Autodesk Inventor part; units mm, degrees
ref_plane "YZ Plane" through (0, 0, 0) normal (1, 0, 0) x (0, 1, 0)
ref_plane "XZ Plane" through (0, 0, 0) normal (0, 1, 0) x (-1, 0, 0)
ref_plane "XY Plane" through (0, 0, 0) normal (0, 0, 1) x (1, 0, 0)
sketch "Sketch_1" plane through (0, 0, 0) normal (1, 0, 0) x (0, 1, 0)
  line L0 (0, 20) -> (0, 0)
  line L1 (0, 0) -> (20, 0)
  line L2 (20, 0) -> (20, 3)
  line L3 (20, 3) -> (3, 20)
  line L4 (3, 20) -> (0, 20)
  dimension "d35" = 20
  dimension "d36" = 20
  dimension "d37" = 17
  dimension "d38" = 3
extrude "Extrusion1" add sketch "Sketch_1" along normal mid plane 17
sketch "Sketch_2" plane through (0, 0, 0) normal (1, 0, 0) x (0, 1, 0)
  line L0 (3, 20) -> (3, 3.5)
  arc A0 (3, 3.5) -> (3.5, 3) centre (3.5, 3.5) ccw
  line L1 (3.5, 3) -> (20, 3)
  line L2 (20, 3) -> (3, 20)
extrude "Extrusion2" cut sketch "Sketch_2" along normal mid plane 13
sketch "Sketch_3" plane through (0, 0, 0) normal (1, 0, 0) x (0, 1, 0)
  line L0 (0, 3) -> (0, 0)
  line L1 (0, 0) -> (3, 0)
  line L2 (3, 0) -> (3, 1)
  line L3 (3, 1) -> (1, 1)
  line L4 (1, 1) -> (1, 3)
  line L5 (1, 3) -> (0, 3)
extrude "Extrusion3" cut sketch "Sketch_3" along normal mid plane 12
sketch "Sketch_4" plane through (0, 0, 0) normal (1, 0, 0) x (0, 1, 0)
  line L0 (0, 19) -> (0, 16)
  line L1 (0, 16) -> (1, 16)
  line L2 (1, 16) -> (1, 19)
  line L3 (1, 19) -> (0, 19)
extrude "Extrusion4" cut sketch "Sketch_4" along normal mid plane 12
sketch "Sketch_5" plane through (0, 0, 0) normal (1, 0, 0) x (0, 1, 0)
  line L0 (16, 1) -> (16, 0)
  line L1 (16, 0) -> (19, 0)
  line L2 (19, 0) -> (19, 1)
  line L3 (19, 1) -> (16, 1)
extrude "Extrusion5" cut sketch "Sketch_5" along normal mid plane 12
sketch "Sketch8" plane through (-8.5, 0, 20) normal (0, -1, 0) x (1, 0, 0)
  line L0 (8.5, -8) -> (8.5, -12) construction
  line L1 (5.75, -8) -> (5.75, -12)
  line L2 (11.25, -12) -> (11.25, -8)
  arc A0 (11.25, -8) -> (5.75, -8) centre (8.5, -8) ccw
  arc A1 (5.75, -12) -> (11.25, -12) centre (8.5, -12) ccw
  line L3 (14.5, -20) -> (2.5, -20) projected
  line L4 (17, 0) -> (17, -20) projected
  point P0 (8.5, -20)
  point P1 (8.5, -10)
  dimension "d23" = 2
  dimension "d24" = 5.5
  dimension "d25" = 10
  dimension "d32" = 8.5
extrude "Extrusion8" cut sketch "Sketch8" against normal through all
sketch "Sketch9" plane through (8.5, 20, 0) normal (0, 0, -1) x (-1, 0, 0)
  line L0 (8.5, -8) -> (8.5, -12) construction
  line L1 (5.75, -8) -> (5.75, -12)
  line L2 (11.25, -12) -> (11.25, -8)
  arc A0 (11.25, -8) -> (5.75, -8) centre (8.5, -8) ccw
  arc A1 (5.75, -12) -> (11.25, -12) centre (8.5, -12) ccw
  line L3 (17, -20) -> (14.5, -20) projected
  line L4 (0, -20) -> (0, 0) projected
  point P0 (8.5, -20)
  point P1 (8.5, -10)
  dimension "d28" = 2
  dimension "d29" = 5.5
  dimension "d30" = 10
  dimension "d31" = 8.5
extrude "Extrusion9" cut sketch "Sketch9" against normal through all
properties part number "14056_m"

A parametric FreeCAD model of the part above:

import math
import FreeCAD as App
import Part
import Sketcher

doc = App.newDocument("Part")
body = doc.addObject("PartDesign::Body", "Body")

# Sketch on YZ plane
sketch1 = doc.addObject("Sketcher::SketchObject", "Sketch")
body.addObject(sketch1)
sketch1.AttachmentSupport = (doc.YZ_Plane, [""])
sketch1.MapMode = "FlatFace"
sketch1.addGeometry([
    Part.LineSegment(App.Vector(3, 20, 0), App.Vector(0, 20, 0)),  # 0
    Part.LineSegment(App.Vector(0, 20, 0), App.Vector(0, 0, 0)),  # 1
    Part.LineSegment(App.Vector(0, 0, 0), App.Vector(20, 0, 0)),  # 2
    Part.LineSegment(App.Vector(20, 0, 0), App.Vector(20, 3, 0)),  # 3
    Part.LineSegment(App.Vector(20, 3, 0), App.Vector(3, 20, 0)),  # 4
], False)
sketch1.addConstraint([
    Sketcher.Constraint("Coincident", 0, 2, 1, 1),
    Sketcher.Constraint("Coincident", 1, 2, 2, 1),
    Sketcher.Constraint("Coincident", 2, 2, 3, 1),
    Sketcher.Constraint("Coincident", 3, 2, 4, 1),
    Sketcher.Constraint("Coincident", 4, 2, 0, 1),
    Sketcher.Constraint("Horizontal", 0),
    Sketcher.Constraint("Vertical", 1),
    Sketcher.Constraint("Horizontal", 2),
    Sketcher.Constraint("Vertical", 3),
    Sketcher.Constraint("Coincident", 1, 2, -1, 1),
    Sketcher.Constraint("Equal", 2, 1),
    Sketcher.Constraint("Equal", 0, 3),
    Sketcher.Constraint("DistanceX", 0, 2, 0, 1, 3.0),
    Sketcher.Constraint("DistanceX", 2, 1, 2, 2, 20.0),
])
pad1 = doc.addObject("PartDesign::Pad", "Pad")
body.addObject(pad1)
pad1.Profile = sketch1
pad1.Length = 17
pad1.Midplane = True

# Sketch on YZ plane
sketch2 = doc.addObject("Sketcher::SketchObject", "Sketch001")
body.addObject(sketch2)
sketch2.AttachmentSupport = (doc.YZ_Plane, [""])
sketch2.MapMode = "FlatFace"
sketch2.addGeometry([
    Part.LineSegment(App.Vector(20, 3, 0), App.Vector(3, 20, 0)),
    Part.LineSegment(App.Vector(3, 20, 0), App.Vector(3, 3.5, 0)),
    Part.ArcOfCircle(Part.Circle(App.Vector(3.5, 3.5, 0), App.Vector(0, 0, 1), 0.5), math.radians(180), math.radians(270)),
    Part.LineSegment(App.Vector(3.5, 3, 0), App.Vector(20, 3, 0)),
], False)
sketch2.addConstraint([
    Sketcher.Constraint("Coincident", 0, 2, 1, 1),
    Sketcher.Constraint("Tangent", 1, 2, 2, 1),
    Sketcher.Constraint("Tangent", 2, 2, 3, 1),
    Sketcher.Constraint("Coincident", 3, 2, 0, 1),
    Sketcher.Constraint("Vertical", 1),
    Sketcher.Constraint("Horizontal", 3),
    Sketcher.Constraint("Equal", 3, 1),
    Sketcher.Constraint("Radius", 2, 0.5),
    Sketcher.Constraint("DistanceX", 3, 1, 3, 2, 16.5),
    Sketcher.Constraint("DistanceX", -1, 1, 0, 2, 3.0),
    Sketcher.Constraint("DistanceY", -1, 1, 0, 2, 20.0),
])
pocket1 = doc.addObject("PartDesign::Pocket", "Pocket")
body.addObject(pocket1)
pocket1.Profile = sketch2
pocket1.Length = 13
pocket1.Midplane = True

# Sketch on YZ plane
sketch3 = doc.addObject("Sketcher::SketchObject", "Sketch002")
body.addObject(sketch3)
sketch3.AttachmentSupport = (doc.YZ_Plane, [""])
sketch3.MapMode = "FlatFace"
sketch3.addGeometry([
    Part.LineSegment(App.Vector(1, 3, 0), App.Vector(0, 3, 0)),  # 0
    Part.LineSegment(App.Vector(0, 3, 0), App.Vector(0, 0, 0)),  # 1
    Part.LineSegment(App.Vector(0, 0, 0), App.Vector(3, 0, 0)),  # 2
    Part.LineSegment(App.Vector(3, 0, 0), App.Vector(3, 1, 0)),  # 3
    Part.LineSegment(App.Vector(3, 1, 0), App.Vector(1, 1, 0)),  # 4
    Part.LineSegment(App.Vector(1, 1, 0), App.Vector(1, 3, 0)),  # 5
], False)
sketch3.addConstraint([
    Sketcher.Constraint("Coincident", 0, 2, 1, 1),
    Sketcher.Constraint("Coincident", 1, 2, 2, 1),
    Sketcher.Constraint("Coincident", 2, 2, 3, 1),
    Sketcher.Constraint("Coincident", 3, 2, 4, 1),
    Sketcher.Constraint("Coincident", 4, 2, 5, 1),
    Sketcher.Constraint("Coincident", 5, 2, 0, 1),
    Sketcher.Constraint("Horizontal", 0),
    Sketcher.Constraint("Vertical", 1),
    Sketcher.Constraint("Horizontal", 2),
    Sketcher.Constraint("Vertical", 3),
    Sketcher.Constraint("Horizontal", 4),
    Sketcher.Constraint("Vertical", 5),
    Sketcher.Constraint("Coincident", 1, 2, -1, 1),
    Sketcher.Constraint("Equal", 2, 1),
    Sketcher.Constraint("Equal", 0, 3),
    Sketcher.Constraint("DistanceX", 0, 2, 0, 1, 1.0),
    Sketcher.Constraint("DistanceX", 2, 1, 2, 2, 3.0),
])
pocket2 = doc.addObject("PartDesign::Pocket", "Pocket001")
body.addObject(pocket2)
pocket2.Profile = sketch3
pocket2.Length = 12
pocket2.Midplane = True

# Sketch on YZ plane
sketch4 = doc.addObject("Sketcher::SketchObject", "Sketch003")
body.addObject(sketch4)
sketch4.AttachmentSupport = (doc.YZ_Plane, [""])
sketch4.MapMode = "FlatFace"
sketch4.addGeometry([
    Part.LineSegment(App.Vector(1, 19, 0), App.Vector(0, 19, 0)),
    Part.LineSegment(App.Vector(0, 19, 0), App.Vector(0, 16, 0)),
    Part.LineSegment(App.Vector(0, 16, 0), App.Vector(1, 16, 0)),
    Part.LineSegment(App.Vector(1, 16, 0), App.Vector(1, 19, 0)),
], False)
sketch4.addConstraint([
    Sketcher.Constraint("Coincident", 0, 2, 1, 1),
    Sketcher.Constraint("Coincident", 1, 2, 2, 1),
    Sketcher.Constraint("Coincident", 2, 2, 3, 1),
    Sketcher.Constraint("Coincident", 3, 2, 0, 1),
    Sketcher.Constraint("Horizontal", 0),
    Sketcher.Constraint("Vertical", 1),
    Sketcher.Constraint("Horizontal", 2),
    Sketcher.Constraint("Vertical", 3),
    Sketcher.Constraint("PointOnObject", 0, 2, -2),
    Sketcher.Constraint("DistanceX", 0, 2, 0, 1, 1.0),
    Sketcher.Constraint("DistanceY", 1, 2, 1, 1, 3.0),
    Sketcher.Constraint("DistanceY", -1, 1, 0, 2, 19.0),
])
pocket3 = doc.addObject("PartDesign::Pocket", "Pocket002")
body.addObject(pocket3)
pocket3.Profile = sketch4
pocket3.Length = 12
pocket3.Midplane = True

# Sketch on YZ plane
sketch5 = doc.addObject("Sketcher::SketchObject", "Sketch004")
body.addObject(sketch5)
sketch5.AttachmentSupport = (doc.YZ_Plane, [""])
sketch5.MapMode = "FlatFace"
sketch5.addGeometry([
    Part.LineSegment(App.Vector(19, 1, 0), App.Vector(16, 1, 0)),
    Part.LineSegment(App.Vector(16, 1, 0), App.Vector(16, 0, 0)),
    Part.LineSegment(App.Vector(16, 0, 0), App.Vector(19, 0, 0)),
    Part.LineSegment(App.Vector(19, 0, 0), App.Vector(19, 1, 0)),
], False)
sketch5.addConstraint([
    Sketcher.Constraint("Coincident", 0, 2, 1, 1),
    Sketcher.Constraint("Coincident", 1, 2, 2, 1),
    Sketcher.Constraint("Coincident", 2, 2, 3, 1),
    Sketcher.Constraint("Coincident", 3, 2, 0, 1),
    Sketcher.Constraint("Horizontal", 0),
    Sketcher.Constraint("Vertical", 1),
    Sketcher.Constraint("Horizontal", 2),
    Sketcher.Constraint("Vertical", 3),
    Sketcher.Constraint("PointOnObject", 1, 2, -1),
    Sketcher.Constraint("DistanceX", 0, 2, 0, 1, 3.0),
    Sketcher.Constraint("DistanceY", 1, 2, 1, 1, 1.0),
    Sketcher.Constraint("DistanceX", -1, 1, 0, 2, 16.0),
])
pocket4 = doc.addObject("PartDesign::Pocket", "Pocket003")
body.addObject(pocket4)
pocket4.Profile = sketch5
pocket4.Length = 12
pocket4.Midplane = True

# Sketch on XZ plane
sketch6 = doc.addObject("Sketcher::SketchObject", "Sketch005")
body.addObject(sketch6)
sketch6.AttachmentSupport = (doc.XZ_Plane, [""])
sketch6.MapMode = "FlatFace"
sketch6.addGeometry([
    Part.ArcOfCircle(Part.Circle(App.Vector(0, 12, 0), App.Vector(0, 0, 1), 2.75), math.radians(0), math.radians(180)),
    Part.LineSegment(App.Vector(-2.75, 12, 0), App.Vector(-2.75, 8, 0)),
    Part.ArcOfCircle(Part.Circle(App.Vector(0, 8, 0), App.Vector(0, 0, 1), 2.75), math.radians(180), math.radians(360)),
    Part.LineSegment(App.Vector(2.75, 8, 0), App.Vector(2.75, 12, 0)),
], False)
sketch6.addConstraint([
    Sketcher.Constraint("Tangent", 0, 2, 1, 1),
    Sketcher.Constraint("Tangent", 1, 2, 2, 1),
    Sketcher.Constraint("Tangent", 2, 2, 3, 1),
    Sketcher.Constraint("Tangent", 3, 2, 0, 1),
    Sketcher.Constraint("Vertical", 1),
    Sketcher.Constraint("Vertical", 3),
    Sketcher.Constraint("PointOnObject", 0, 3, -2),
    Sketcher.Constraint("Radius", 0, 2.75),
    Sketcher.Constraint("DistanceY", 1, 2, 1, 1, 4.0),
    Sketcher.Constraint("DistanceY", -1, 1, 0, 3, 12.0),
])
pocket5 = doc.addObject("PartDesign::Pocket", "Pocket004")
body.addObject(pocket5)
pocket5.Profile = sketch6
pocket5.Type = "ThroughAll"

# Sketch on XY plane
sketch7 = doc.addObject("Sketcher::SketchObject", "Sketch006")
body.addObject(sketch7)
sketch7.AttachmentSupport = (doc.XY_Plane, [""])
sketch7.MapMode = "FlatFace"
sketch7.addGeometry([
    Part.ArcOfCircle(Part.Circle(App.Vector(0, 12, 0), App.Vector(0, 0, 1), 2.75), math.radians(0), math.radians(180)),
    Part.LineSegment(App.Vector(2.75, 12, 0), App.Vector(2.75, 8, 0)),
    Part.ArcOfCircle(Part.Circle(App.Vector(0, 8, 0), App.Vector(0, 0, 1), 2.75), math.radians(180), math.radians(360)),
    Part.LineSegment(App.Vector(-2.75, 8, 0), App.Vector(-2.75, 12, 0)),
], False)
sketch7.addConstraint([
    Sketcher.Constraint("Tangent", 0, 1, 1, 1),
    Sketcher.Constraint("Tangent", 1, 2, 2, 2),
    Sketcher.Constraint("Tangent", 2, 1, 3, 1),
    Sketcher.Constraint("Tangent", 3, 2, 0, 2),
    Sketcher.Constraint("Vertical", 1),
    Sketcher.Constraint("Vertical", 3),
    Sketcher.Constraint("PointOnObject", 0, 3, -2),
    Sketcher.Constraint("Radius", 0, 2.75),
    Sketcher.Constraint("DistanceY", 1, 2, 1, 1, 4.0),
    Sketcher.Constraint("DistanceY", -1, 1, 0, 3, 12.0),
])
pocket6 = doc.addObject("PartDesign::Pocket", "Pocket005")
body.addObject(pocket6)
pocket6.Profile = sketch7
pocket6.Type = "ThroughAll"
pocket6.Reversed = True

doc.recompute()
